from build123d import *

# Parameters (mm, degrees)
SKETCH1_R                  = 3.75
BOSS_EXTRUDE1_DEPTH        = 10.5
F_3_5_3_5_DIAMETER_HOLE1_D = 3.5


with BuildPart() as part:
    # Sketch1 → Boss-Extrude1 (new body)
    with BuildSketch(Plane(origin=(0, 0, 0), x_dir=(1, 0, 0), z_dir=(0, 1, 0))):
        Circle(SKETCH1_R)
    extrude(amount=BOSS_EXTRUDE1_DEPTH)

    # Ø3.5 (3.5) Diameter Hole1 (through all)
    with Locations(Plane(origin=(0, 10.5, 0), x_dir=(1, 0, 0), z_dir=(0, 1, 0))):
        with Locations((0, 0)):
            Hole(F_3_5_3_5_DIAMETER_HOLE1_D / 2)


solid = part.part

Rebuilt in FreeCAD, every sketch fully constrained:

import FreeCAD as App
import Part
import Sketcher

doc = App.newDocument("Part")
body = doc.addObject("PartDesign::Body", "Body")

# Sketch on XZ plane
sketch1 = body.newObject("Sketcher::SketchObject", "Sketch")
sketch1.AttachmentSupport = (doc.getObject("XZ_Plane"), [""])
sketch1.MapMode = "FlatFace"
sketch1.addGeometry(Part.Circle(App.Vector(0, 0, 0), App.Vector(0, 0, 1), 3.75), False)
sketch1.addConstraint(Sketcher.Constraint("Coincident", 0, 3, -1, 1))
sketch1.addConstraint(Sketcher.Constraint("Diameter", 0, 7.5))
pad1 = body.newObject("PartDesign::Pad", "Pad")
pad1.Profile = sketch1
pad1.Length = 10.5
pad1.Reversed = True

# Sketch on XZ plane
sketch2 = body.newObject("Sketcher::SketchObject", "Sketch001")
sketch2.AttachmentSupport = (doc.getObject("XZ_Plane"), [""])
sketch2.MapMode = "FlatFace"
sketch2.AttachmentOffset = App.Placement(App.Vector(0, 0, -10.5), App.Rotation())
sketch2.addGeometry(Part.Circle(App.Vector(0, 0, 0), App.Vector(0, 0, 1), 1.75), False)
sketch2.addConstraint(Sketcher.Constraint("Coincident", 0, 3, -1, 1))
sketch2.addConstraint(Sketcher.Constraint("Diameter", 0, 3.5))
doc.recompute()
hole = body.newObject("PartDesign::Hole", "Hole")
hole.Profile = sketch2
hole.ThreadType = "None"
hole.Diameter = 3.5
hole.DepthType = "ThroughAll"
hole.Reversed = True

doc.recompute()
